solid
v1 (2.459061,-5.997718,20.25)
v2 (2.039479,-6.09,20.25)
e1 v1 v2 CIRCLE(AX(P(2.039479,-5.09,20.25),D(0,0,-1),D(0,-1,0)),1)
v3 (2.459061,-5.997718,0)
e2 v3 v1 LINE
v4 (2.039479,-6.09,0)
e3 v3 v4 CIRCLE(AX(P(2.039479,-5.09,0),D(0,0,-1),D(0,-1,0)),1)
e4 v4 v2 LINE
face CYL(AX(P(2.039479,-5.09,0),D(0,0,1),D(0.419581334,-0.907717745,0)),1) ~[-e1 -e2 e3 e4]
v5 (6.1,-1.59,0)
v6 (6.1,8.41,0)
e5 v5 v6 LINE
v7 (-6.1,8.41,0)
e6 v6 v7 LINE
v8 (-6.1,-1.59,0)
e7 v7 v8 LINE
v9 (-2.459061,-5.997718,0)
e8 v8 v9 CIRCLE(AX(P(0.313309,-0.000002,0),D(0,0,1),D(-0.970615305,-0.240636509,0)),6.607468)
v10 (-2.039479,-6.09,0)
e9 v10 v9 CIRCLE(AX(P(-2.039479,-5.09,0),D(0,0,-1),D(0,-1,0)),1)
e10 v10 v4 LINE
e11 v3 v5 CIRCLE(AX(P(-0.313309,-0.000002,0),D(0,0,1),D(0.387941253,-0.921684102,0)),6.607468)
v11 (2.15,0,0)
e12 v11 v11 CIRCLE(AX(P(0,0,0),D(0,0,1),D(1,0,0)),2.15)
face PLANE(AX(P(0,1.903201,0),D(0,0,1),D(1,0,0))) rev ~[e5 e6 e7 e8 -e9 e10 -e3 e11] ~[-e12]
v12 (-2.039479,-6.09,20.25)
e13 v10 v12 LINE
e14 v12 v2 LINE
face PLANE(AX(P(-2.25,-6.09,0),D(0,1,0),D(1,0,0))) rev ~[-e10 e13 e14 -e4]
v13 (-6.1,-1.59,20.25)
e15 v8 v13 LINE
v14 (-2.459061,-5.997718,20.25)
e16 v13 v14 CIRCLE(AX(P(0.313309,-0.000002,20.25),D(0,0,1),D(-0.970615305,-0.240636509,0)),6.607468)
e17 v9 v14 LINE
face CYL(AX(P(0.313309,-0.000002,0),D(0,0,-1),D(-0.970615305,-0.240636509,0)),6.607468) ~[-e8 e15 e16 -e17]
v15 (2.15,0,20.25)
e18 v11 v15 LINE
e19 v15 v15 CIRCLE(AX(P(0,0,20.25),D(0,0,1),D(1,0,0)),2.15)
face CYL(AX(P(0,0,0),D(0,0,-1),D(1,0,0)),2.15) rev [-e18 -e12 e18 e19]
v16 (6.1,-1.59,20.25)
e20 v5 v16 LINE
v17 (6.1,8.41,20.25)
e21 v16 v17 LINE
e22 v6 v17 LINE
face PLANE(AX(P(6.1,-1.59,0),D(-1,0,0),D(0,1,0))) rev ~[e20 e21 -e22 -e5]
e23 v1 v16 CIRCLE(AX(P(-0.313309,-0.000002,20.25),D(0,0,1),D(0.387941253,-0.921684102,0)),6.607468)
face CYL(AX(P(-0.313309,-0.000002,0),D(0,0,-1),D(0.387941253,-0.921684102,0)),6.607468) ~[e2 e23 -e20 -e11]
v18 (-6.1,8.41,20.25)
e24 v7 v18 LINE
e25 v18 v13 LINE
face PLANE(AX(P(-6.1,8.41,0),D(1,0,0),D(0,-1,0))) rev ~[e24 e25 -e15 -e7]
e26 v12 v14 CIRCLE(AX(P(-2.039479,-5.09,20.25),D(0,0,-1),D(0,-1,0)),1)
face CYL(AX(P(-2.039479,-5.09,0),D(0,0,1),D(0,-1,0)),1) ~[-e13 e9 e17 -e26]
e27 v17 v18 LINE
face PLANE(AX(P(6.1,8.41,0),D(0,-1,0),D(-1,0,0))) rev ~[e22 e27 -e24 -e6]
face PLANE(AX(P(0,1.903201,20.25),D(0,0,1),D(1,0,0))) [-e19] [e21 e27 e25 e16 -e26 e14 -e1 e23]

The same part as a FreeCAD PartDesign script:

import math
import FreeCAD as App
import Part
import Sketcher


def edges_at(feature, points):
    """Names of the edges that pass closest to the given points."""
    edges = feature.Shape.Edges
    near = lambda p: min(range(len(edges)), key=lambda i: edges[i].distToShape(Part.Vertex(*p))[0])
    return sorted({f"Edge{near(p) + 1}" for p in points})

doc = App.newDocument("Part")
body = doc.addObject("PartDesign::Body", "Body")

# Sketch on XY plane
sketch1 = body.newObject("Sketcher::SketchObject", "Sketch")
sketch1.AttachmentSupport = (doc.getObject("XY_Plane"), [""])
sketch1.MapMode = "FlatFace"
sketch1.addGeometry(Part.LineSegment(App.Vector(6.1, -1.6, 0), App.Vector(6.1, 8.4, 0)), False)
sketch1.addGeometry(Part.LineSegment(App.Vector(6.1, 8.4, 0), App.Vector(-6.1, 8.4, 0)), False)
sketch1.addGeometry(Part.LineSegment(App.Vector(-6.1, 8.4, 0), App.Vector(-6.1, -1.6, 0)), False)
sketch1.addGeometry(Part.ArcOfCircle(Part.Circle(App.Vector(0.3, 0, 0), App.Vector(0, 0, 1), 6.6), math.radians(-166), math.radians(-113)), False)
sketch1.addGeometry(Part.LineSegment(App.Vector(-2.2, -6.1, 0), App.Vector(2.2, -6.1, 0)), False)
sketch1.addGeometry(Part.ArcOfCircle(Part.Circle(App.Vector(-0.3, 0, 0), App.Vector(0, 0, 1), 6.6), math.radians(-67), math.radians(-14)), False)
sketch1.addGeometry(Part.Circle(App.Vector(0, 0, 0), App.Vector(0, 0, 1), 2.1), False)
sketch1.addConstraint(Sketcher.Constraint("Coincident", 0, 2, 1, 1))
sketch1.addConstraint(Sketcher.Constraint("Coincident", 1, 2, 2, 1))
sketch1.addConstraint(Sketcher.Constraint("Coincident", 2, 2, 3, 1))
sketch1.addConstraint(Sketcher.Constraint("Coincident", 3, 2, 4, 1))
sketch1.addConstraint(Sketcher.Constraint("Coincident", 4, 2, 5, 1))
sketch1.addConstraint(Sketcher.Constraint("Coincident", 5, 2, 0, 1))
sketch1.addConstraint(Sketcher.Constraint("Vertical", 0))
sketch1.addConstraint(Sketcher.Constraint("Horizontal", 1))
sketch1.addConstraint(Sketcher.Constraint("Vertical", 2))
sketch1.addConstraint(Sketcher.Constraint("Horizontal", 4))
sketch1.addConstraint(Sketcher.Constraint("Coincident", 6, 3, -1, 1))
sketch1.addConstraint(Sketcher.Constraint("Equal", 3, 5))
sketch1.addConstraint(Sketcher.Constraint("Symmetric", 3, 3, 5, 3, -1, 1))
sketch1.addConstraint(Sketcher.Constraint("Symmetric", 2, 2, 5, 2, -2))
sketch1.addConstraint(Sketcher.Constraint("Diameter", 6, 4.3))
sketch1.addConstraint(Sketcher.Constraint("DistanceY", 0, 1, 0, 2, 10.0))
sketch1.addConstraint(Sketcher.Constraint("DistanceX", 1, 2, 1, 1, 12.2))
sketch1.addConstraint(Sketcher.Constraint("DistanceX", 4, 1, 4, 2, 4.5))
sketch1.addConstraint(Sketcher.Constraint("DistanceY", 3, 2, 2, 2, 4.5))
sketch1.addConstraint(Sketcher.Constraint("DistanceY", -1, 1, 0, 2, 8.41))
pad1 = body.newObject("PartDesign::Pad", "Pad")
pad1.Profile = sketch1
pad1.Length = 20.25
doc.recompute()

fillet = body.newObject("PartDesign::Fillet", "Fillet")
fillet.Base = (pad1, edges_at(pad1, [(-2.25, -6.09, 10.125), (2.25, -6.09, 10.125)]))
fillet.Radius = 1

doc.recompute()
